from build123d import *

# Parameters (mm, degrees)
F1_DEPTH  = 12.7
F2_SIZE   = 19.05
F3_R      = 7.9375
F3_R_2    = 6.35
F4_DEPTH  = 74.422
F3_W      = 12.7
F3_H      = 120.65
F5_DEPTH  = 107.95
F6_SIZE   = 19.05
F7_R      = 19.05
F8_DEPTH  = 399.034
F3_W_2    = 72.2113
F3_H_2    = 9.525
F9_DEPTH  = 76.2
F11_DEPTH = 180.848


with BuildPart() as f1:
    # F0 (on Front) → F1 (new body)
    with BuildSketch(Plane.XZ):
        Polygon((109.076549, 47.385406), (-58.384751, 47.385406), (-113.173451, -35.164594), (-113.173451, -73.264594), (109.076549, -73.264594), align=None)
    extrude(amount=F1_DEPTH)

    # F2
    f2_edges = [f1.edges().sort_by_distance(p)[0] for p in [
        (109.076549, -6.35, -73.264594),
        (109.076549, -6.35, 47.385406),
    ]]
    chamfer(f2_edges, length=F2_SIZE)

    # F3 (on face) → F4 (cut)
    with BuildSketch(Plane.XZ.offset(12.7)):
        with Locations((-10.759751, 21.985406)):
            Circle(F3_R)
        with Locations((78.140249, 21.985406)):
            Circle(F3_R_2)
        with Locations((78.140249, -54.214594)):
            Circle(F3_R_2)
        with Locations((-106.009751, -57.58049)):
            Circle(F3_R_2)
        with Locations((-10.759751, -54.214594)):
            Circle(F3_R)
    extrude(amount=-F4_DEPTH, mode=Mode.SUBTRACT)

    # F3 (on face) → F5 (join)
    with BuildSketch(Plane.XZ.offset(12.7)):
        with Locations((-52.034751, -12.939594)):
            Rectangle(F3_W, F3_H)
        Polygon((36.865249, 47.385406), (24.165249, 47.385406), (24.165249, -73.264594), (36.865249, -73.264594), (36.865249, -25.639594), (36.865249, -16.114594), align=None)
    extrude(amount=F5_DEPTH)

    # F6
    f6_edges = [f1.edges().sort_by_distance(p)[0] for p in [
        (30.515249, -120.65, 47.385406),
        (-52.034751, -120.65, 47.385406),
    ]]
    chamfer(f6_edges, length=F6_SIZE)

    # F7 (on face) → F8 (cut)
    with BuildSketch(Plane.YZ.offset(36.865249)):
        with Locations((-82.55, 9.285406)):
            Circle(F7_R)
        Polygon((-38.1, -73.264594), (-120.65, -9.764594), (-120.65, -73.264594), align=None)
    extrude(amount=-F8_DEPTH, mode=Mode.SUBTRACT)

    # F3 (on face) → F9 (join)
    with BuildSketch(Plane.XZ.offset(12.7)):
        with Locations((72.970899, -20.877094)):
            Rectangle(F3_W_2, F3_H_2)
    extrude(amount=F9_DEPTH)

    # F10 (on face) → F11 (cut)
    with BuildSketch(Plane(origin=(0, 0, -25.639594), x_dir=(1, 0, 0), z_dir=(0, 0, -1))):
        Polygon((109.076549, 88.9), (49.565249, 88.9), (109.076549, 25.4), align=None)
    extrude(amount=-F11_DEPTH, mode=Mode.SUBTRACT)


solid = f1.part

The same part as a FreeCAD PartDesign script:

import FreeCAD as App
import Part
import Sketcher
from FreeCAD import Vector
Q = App.Units.Quantity


def edges_at(feature, points):
    """Names of the edges that pass closest to the given points."""
    edges = feature.Shape.Edges
    near = lambda p: min(range(len(edges)), key=lambda i: edges[i].distToShape(Part.Vertex(*p))[0])
    return sorted({f"Edge{near(p) + 1}" for p in points})

doc = App.newDocument("Part")
params = doc.addObject("Spreadsheet::Sheet", "Params")
for row, (alias, value) in enumerate([
    ("sketch1_height", "1.5 in"),
    ("sketch1_width", "8.75 in"),
    ("sketch1_height2", "4.75 in"),
    ("pad1_length", "0.5 in"),
    ("chamfer_size", "0.75 in"),
    ("sketch2_diameter", "0.5 in"),
    ("sketch2_diameter2", "0.625 in"),
    ("pocket1_length", "2.93 in"),
    ("sketch3_width", "0.5 in"),
    ("sketch3_height", "4.75 in"),
    ("pad2_length", "4.25 in"),
    ("chamfer2_size", "0.75 in"),
    ("sketch4_diameter", "1.5 in"),
    ("sketch4_height", "2.5 in"),
    ("sketch4_width", "3.25 in"),
    ("pocket2_length", "15.71 in"),
    ("sketch5_height", "0.375 in"),
    ("pad3_length", "3 in"),
    ("sketch6_height", "2.5 in"),
    ("pocket3_length", "7.12 in"),
], start=1):
    params.set(f"A{row}", alias)
    params.set(f"B{row}", "=" + value)
    params.setAlias(f"B{row}", alias)

body = doc.addObject("PartDesign::Body", "Body")

# Sketch on XZ plane
sketch1 = body.newObject("Sketcher::SketchObject", "Sketch")
sketch1.AttachmentSupport = (doc.getObject("XZ_Plane"), [""])
sketch1.MapMode = "FlatFace"
sketch1.addGeometry([
    Part.LineSegment(Vector(109.076549, 47.385406, 0), Vector(-58.384751, 47.385406, 0)),  # 0
    Part.LineSegment(Vector(-58.384751, 47.385406, 0), Vector(-113.173451, -35.164594, 0)),  # 1
    Part.LineSegment(Vector(-113.173451, -35.164594, 0), Vector(-113.173451, -73.264594, 0)),  # 2
    Part.LineSegment(Vector(-113.173451, -73.264594, 0), Vector(109.076549, -73.264594, 0)),  # 3
    Part.LineSegment(Vector(109.076549, -73.264594, 0), Vector(109.076549, 47.385406, 0)),  # 4
], False)
sketch1.addConstraint([
    Sketcher.Constraint("Coincident", 0, 2, 1, 1),
    Sketcher.Constraint("Coincident", 1, 2, 2, 1),
    Sketcher.Constraint("Coincident", 2, 2, 3, 1),
    Sketcher.Constraint("Coincident", 3, 2, 4, 1),
    Sketcher.Constraint("Coincident", 4, 2, 0, 1),
    Sketcher.Constraint("Horizontal", 0),
    Sketcher.Constraint("Vertical", 2),
    Sketcher.Constraint("Horizontal", 3),
    Sketcher.Constraint("Vertical", 4),
    Sketcher.Constraint("DistanceY", 2, 2, 2, 1, Q("1.5 in")),
    Sketcher.Constraint("DistanceX", 3, 1, 3, 2, Q("8.75 in")),
    Sketcher.Constraint("DistanceY", 4, 1, 4, 2, Q("4.75 in")),
    Sketcher.Constraint("DistanceX", 0, 2, 0, 1, Q("167.4613 mm")),
    Sketcher.Constraint("DistanceX", 0, 2, -1, 1, Q("58.384751 mm")),
    Sketcher.Constraint("DistanceY", -1, 1, 0, 2, Q("47.385406 mm")),
])
sketch1.setExpression("Constraints[9]", "Params.sketch1_height")
sketch1.setExpression("Constraints[10]", "Params.sketch1_width")
sketch1.setExpression("Constraints[11]", "Params.sketch1_height2")
pad1 = body.newObject("PartDesign::Pad", "Pad")
pad1.Profile = sketch1
pad1.setExpression("Length", "Params.pad1_length")
doc.recompute()

chamfer = body.newObject("PartDesign::Chamfer", "Chamfer")
chamfer.Base = (pad1, edges_at(pad1, [(109.077, -6.35, -73.265), (109.077, -6.35, 47.385)]))
chamfer.setExpression("Size", "Params.chamfer_size")

# Sketch on XZ plane
sketch2 = body.newObject("Sketcher::SketchObject", "Sketch001")
sketch2.AttachmentSupport = (doc.getObject("XZ_Plane"), [""])
sketch2.MapMode = "FlatFace"
sketch2.AttachmentOffset = App.Placement(Vector(0, 0, 0.5 * 25.4), App.Rotation())
sketch2.addGeometry([
    Part.Circle(Vector(-10.759751, 21.985406, 0), Vector(0, 0, 1), 7.9375),  # 0
    Part.Circle(Vector(78.140249, 21.985406, 0), Vector(0, 0, 1), 6.35),  # 1
    Part.Circle(Vector(78.140249, -54.214594, 0), Vector(0, 0, 1), 6.35),  # 2
    Part.Circle(Vector(-106.009751, -57.58049, 0), Vector(0, 0, 1), 6.35),  # 3
    Part.Circle(Vector(-10.759751, -54.214594, 0), Vector(0, 0, 1), 7.9375),  # 4
], False)
sketch2.addConstraint([
    Sketcher.Constraint("Equal", 1, 2),
    Sketcher.Constraint("Equal", 2, 3),
    Sketcher.Constraint("Equal", 0, 4),
    Sketcher.Constraint("Horizontal", 0, 3, 1, 3),
    Sketcher.Constraint("Horizontal", 2, 3, 4, 3),
    Sketcher.Constraint("Vertical", 1, 3, 2, 3),
    Sketcher.Constraint("Vertical", 0, 3, 4, 3),
    Sketcher.Constraint("Diameter", 1, Q("0.5 in")),
    Sketcher.Constraint("Diameter", 0, Q("0.625 in")),
    Sketcher.Constraint("DistanceY", 2, 3, 1, 3, Q("3 in")),
    Sketcher.Constraint("DistanceX", 0, 3, 1, 3, Q("3.5 in")),
    Sketcher.Constraint("DistanceX", 3, 3, 0, 3, Q("3.75 in")),
    Sketcher.Constraint("DistanceX", 0, 3, -1, 1, Q("10.759751 mm")),
    Sketcher.Constraint("DistanceY", 3, 3, -1, 1, Q("57.58049 mm")),
    Sketcher.Constraint("DistanceY", -1, 1, 0, 3, Q("21.985406 mm")),
])
sketch2.setExpression("Constraints[7]", "Params.sketch2_diameter")
sketch2.setExpression("Constraints[8]", "Params.sketch2_diameter2")
pocket1 = body.newObject("PartDesign::Pocket", "Pocket")
pocket1.Profile = sketch2
pocket1.setExpression("Length", "Params.pocket1_length")

# Sketch on XZ plane
sketch3 = body.newObject("Sketcher::SketchObject", "Sketch002")
sketch3.AttachmentSupport = (doc.getObject("XZ_Plane"), [""])
sketch3.MapMode = "FlatFace"
sketch3.AttachmentOffset = App.Placement(Vector(0, 0, 0.5 * 25.4), App.Rotation())
sketch3.addGeometry([
    Part.LineSegment(Vector(-58.384751, 47.385406, 0), Vector(-58.384751, -73.264594, 0)),  # 0
    Part.LineSegment(Vector(-58.384751, -73.264594, 0), Vector(-45.684751, -73.264594, 0)),  # 1
    Part.LineSegment(Vector(-45.684751, -73.264594, 0), Vector(-45.684751, 47.385406, 0)),  # 2
    Part.LineSegment(Vector(-45.684751, 47.385406, 0), Vector(-58.384751, 47.385406, 0)),  # 3
    Part.LineSegment(Vector(36.865249, 47.385406, 0), Vector(24.165249, 47.385406, 0)),  # 4
    Part.LineSegment(Vector(24.165249, 47.385406, 0), Vector(24.165249, -73.264594, 0)),  # 5
    Part.LineSegment(Vector(24.165249, -73.264594, 0), Vector(36.865249, -73.264594, 0)),  # 6
    Part.LineSegment(Vector(36.865249, -73.264594, 0), Vector(36.865249, 47.385406, 0)),  # 7
], False)
sketch3.addConstraint([
    Sketcher.Constraint("Coincident", 0, 2, 1, 1),
    Sketcher.Constraint("Coincident", 1, 2, 2, 1),
    Sketcher.Constraint("Coincident", 2, 2, 3, 1),
    Sketcher.Constraint("Coincident", 3, 2, 0, 1),
    Sketcher.Constraint("Coincident", 4, 2, 5, 1),
    Sketcher.Constraint("Coincident", 5, 2, 6, 1),
    Sketcher.Constraint("Coincident", 6, 2, 7, 1),
    Sketcher.Constraint("Coincident", 7, 2, 4, 1),
    Sketcher.Constraint("Vertical", 0),
    Sketcher.Constraint("Horizontal", 1),
    Sketcher.Constraint("Vertical", 2),
    Sketcher.Constraint("Horizontal", 3),
    Sketcher.Constraint("Horizontal", 4),
    Sketcher.Constraint("Vertical", 5),
    Sketcher.Constraint("Horizontal", 6),
    Sketcher.Constraint("Vertical", 7),
    Sketcher.Constraint("Horizontal", 3, 2, 4, 2),
    Sketcher.Constraint("Horizontal", 1, 2, 5, 2),
    Sketcher.Constraint("Equal", 3, 4),
    Sketcher.Constraint("DistanceX", 1, 1, 1, 2, Q("0.5 in")),
    Sketcher.Constraint("DistanceY", 0, 2, 0, 1, Q("4.75 in")),
    Sketcher.Constraint("DistanceX", 2, 2, 4, 2, Q("2.75 in")),
    Sketcher.Constraint("DistanceX", 0, 2, -1, 1, Q("58.384751 mm")),
    Sketcher.Constraint("DistanceY", 0, 2, -1, 1, Q("73.264594 mm")),
])
sketch3.setExpression("Constraints[19]", "Params.sketch3_width")
sketch3.setExpression("Constraints[20]", "Params.sketch3_height")
pad2 = body.newObject("PartDesign::Pad", "Pad001")
pad2.Profile = sketch3
pad2.setExpression("Length", "Params.pad2_length")
doc.recompute()

chamfer2 = body.newObject("PartDesign::Chamfer", "Chamfer001")
chamfer2.Base = (pad2, edges_at(pad2, [(30.515, -120.65, 47.385), (-52.035, -120.65, 47.385)]))
chamfer2.setExpression("Size", "Params.chamfer2_size")

# Sketch on YZ plane
sketch4 = body.newObject("Sketcher::SketchObject", "Sketch003")
sketch4.AttachmentSupport = (doc.getObject("YZ_Plane"), [""])
sketch4.MapMode = "FlatFace"
sketch4.AttachmentOffset = App.Placement(Vector(0, 0, 36.865249), App.Rotation())
sketch4.addGeometry([
    Part.Circle(Vector(-82.55, 9.285406, 0), Vector(0, 0, 1), 19.05),
    Part.LineSegment(Vector(-38.1, -73.264594, 0), Vector(-120.65, -9.764594, 0)),
    Part.LineSegment(Vector(-120.65, -9.764594, 0), Vector(-120.65, -73.264594, 0)),
    Part.LineSegment(Vector(-120.65, -73.264594, 0), Vector(-38.1, -73.264594, 0)),
], False)
sketch4.addConstraint([
    Sketcher.Constraint("Coincident", 1, 2, 2, 1),
    Sketcher.Constraint("Coincident", 2, 2, 3, 1),
    Sketcher.Constraint("Coincident", 3, 2, 1, 1),
    Sketcher.Constraint("Vertical", 2),
    Sketcher.Constraint("Horizontal", 3),
    Sketcher.Constraint("Diameter", 0, Q("1.5 in")),
    Sketcher.Constraint("DistanceY", 2, 2, 2, 1, Q("2.5 in")),
    Sketcher.Constraint("DistanceX", 3, 1, 3, 2, Q("3.25 in")),
    Sketcher.Constraint("DistanceX", 3, 2, -1, 1, Q("1.5 in")),
    Sketcher.Constraint("DistanceX", 1, 2, 0, 3, Q("1.5 in")),
    Sketcher.Constraint("DistanceY", 1, 2, 0, 3, Q("0.75 in")),
    Sketcher.Constraint("DistanceY", -1, 1, 0, 3, Q("9.285406 mm")),
])
sketch4.setExpression("Constraints[5]", "Params.sketch4_diameter")
sketch4.setExpression("Constraints[6]", "Params.sketch4_height")
sketch4.setExpression("Constraints[7]", "Params.sketch4_width")
pocket2 = body.newObject("PartDesign::Pocket", "Pocket001")
pocket2.Profile = sketch4
pocket2.setExpression("Length", "Params.pocket2_length")

# Sketch on XZ plane
sketch5 = body.newObject("Sketcher::SketchObject", "Sketch004")
sketch5.AttachmentSupport = (doc.getObject("XZ_Plane"), [""])
sketch5.MapMode = "FlatFace"
sketch5.AttachmentOffset = App.Placement(Vector(0, 0, 0.5 * 25.4), App.Rotation())
sketch5.addGeometry([
    Part.LineSegment(Vector(36.865249, -16.114594, 0), Vector(36.865249, -25.639594, 0)),
    Part.LineSegment(Vector(36.865249, -25.639594, 0), Vector(109.076549, -25.639594, 0)),
    Part.LineSegment(Vector(109.076549, -25.639594, 0), Vector(109.076549, -16.114594, 0)),
    Part.LineSegment(Vector(109.076549, -16.114594, 0), Vector(36.865249, -16.114594, 0)),
], False)
sketch5.addConstraint([
    Sketcher.Constraint("Coincident", 0, 2, 1, 1),
    Sketcher.Constraint("Coincident", 1, 2, 2, 1),
    Sketcher.Constraint("Coincident", 2, 2, 3, 1),
    Sketcher.Constraint("Coincident", 3, 2, 0, 1),
    Sketcher.Constraint("Vertical", 0),
    Sketcher.Constraint("Horizontal", 1),
    Sketcher.Constraint("Vertical", 2),
    Sketcher.Constraint("Horizontal", 3),
    Sketcher.Constraint("DistanceY", 0, 2, 0, 1, Q("0.375 in")),
    Sketcher.Constraint("DistanceX", 1, 1, 1, 2, Q("72.2113 mm")),
    Sketcher.Constraint("DistanceX", -1, 1, 0, 2, Q("36.865249 mm")),
    Sketcher.Constraint("DistanceY", 0, 2, -1, 1, Q("25.639594 mm")),
])
sketch5.setExpression("Constraints[8]", "Params.sketch5_height")
pad3 = body.newObject("PartDesign::Pad", "Pad002")
pad3.Profile = sketch5
pad3.setExpression("Length", "Params.pad3_length")

# Sketch on XY plane
sketch6 = body.newObject("Sketcher::SketchObject", "Sketch005")
sketch6.AttachmentSupport = (doc.getObject("XY_Plane"), [""])
sketch6.MapMode = "FlatFace"
sketch6.AttachmentOffset = App.Placement(Vector(0, 0, -25.639594), App.Rotation())
sketch6.addGeometry([
    Part.LineSegment(Vector(109.076549, -88.9, 0), Vector(49.565249, -88.9, 0)),
    Part.LineSegment(Vector(49.565249, -88.9, 0), Vector(109.076549, -25.4, 0)),
    Part.LineSegment(Vector(109.076549, -25.4, 0), Vector(109.076549, -88.9, 0)),
], False)
sketch6.addConstraint([
    Sketcher.Constraint("Coincident", 0, 2, 1, 1),
    Sketcher.Constraint("Coincident", 1, 2, 2, 1),
    Sketcher.Constraint("Coincident", 2, 2, 0, 1),
    Sketcher.Constraint("Horizontal", 0),
    Sketcher.Constraint("Vertical", 2),
    Sketcher.Constraint("DistanceY", 2, 2, 2, 1, Q("2.5 in")),
    Sketcher.Constraint("DistanceY", 1, 2, -1, 1, Q("1 in")),
    Sketcher.Constraint("DistanceX", 0, 2, 0, 1, Q("59.5113 mm")),
    Sketcher.Constraint("DistanceX", -1, 1, 0, 2, Q("49.565249 mm")),
])
sketch6.setExpression("Constraints[5]", "Params.sketch6_height")
pocket3 = body.newObject("PartDesign::Pocket", "Pocket002")
pocket3.Profile = sketch6
pocket3.setExpression("Length", "Params.pocket3_length")
pocket3.Reversed = True

doc.recompute()
